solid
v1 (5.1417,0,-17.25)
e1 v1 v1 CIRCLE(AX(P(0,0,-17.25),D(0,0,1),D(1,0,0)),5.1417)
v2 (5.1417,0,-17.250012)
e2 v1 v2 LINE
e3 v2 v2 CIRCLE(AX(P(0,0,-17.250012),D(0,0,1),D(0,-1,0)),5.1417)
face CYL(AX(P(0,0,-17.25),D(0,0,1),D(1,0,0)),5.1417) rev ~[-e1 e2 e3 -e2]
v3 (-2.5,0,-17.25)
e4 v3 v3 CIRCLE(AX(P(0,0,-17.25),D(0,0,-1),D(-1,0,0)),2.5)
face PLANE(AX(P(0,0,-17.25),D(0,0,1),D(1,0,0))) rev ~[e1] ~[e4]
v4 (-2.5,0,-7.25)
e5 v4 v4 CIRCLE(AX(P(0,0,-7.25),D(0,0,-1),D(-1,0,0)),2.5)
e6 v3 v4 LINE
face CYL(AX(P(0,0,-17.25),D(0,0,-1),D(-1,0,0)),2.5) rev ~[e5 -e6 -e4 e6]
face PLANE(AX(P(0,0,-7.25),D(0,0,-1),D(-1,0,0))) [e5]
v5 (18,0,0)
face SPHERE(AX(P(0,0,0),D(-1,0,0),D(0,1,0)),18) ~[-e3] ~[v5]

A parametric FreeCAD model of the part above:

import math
import FreeCAD as App
import Part
import Sketcher

V = App.Vector

doc = App.newDocument("Part")
body = doc.addObject("PartDesign::Body", "Body")

# Sketch on XY plane
sketch1 = doc.addObject("Sketcher::SketchObject", "Sketch")
body.addObject(sketch1)
sketch1.AttachmentSupport = (doc.XY_Plane, [""])
sketch1.MapMode = "FlatFace"
sketch1.addGeometry([
    Part.LineSegment(V(-18, 0, 0), V(18, 0, 0)),
    Part.ArcOfCircle(Part.Circle(V(0, 0, 0), V(0, 0, 1), 18), math.radians(0), math.radians(180)),
], False)
sketch1.addConstraint([
    Sketcher.Constraint("Coincident", 0, 1, 1, 2),
    Sketcher.Constraint("Coincident", 1, 1, 0, 2),
    Sketcher.Constraint("Horizontal", 0),
    Sketcher.Constraint("Coincident", 1, 3, -1, 1),
    Sketcher.Constraint("PointOnObject", 0, 1, -1),
    Sketcher.Constraint("Radius", 1, 18.0),
])
revolution = doc.addObject("PartDesign::Revolution", "Revolution")
body.addObject(revolution)
revolution.Profile = sketch1
revolution.ReferenceAxis = (sketch1, ["H_Axis"])
revolution.Angle = 360

# Sketch on XY plane
sketch2 = doc.addObject("Sketcher::SketchObject", "Sketch001")
body.addObject(sketch2)
sketch2.AttachmentSupport = (doc.XY_Plane, [""])
sketch2.MapMode = "FlatFace"
sketch2.AttachmentOffset = App.Placement(V(0, 0, -17.25), App.Rotation())
sketch2.addGeometry(Part.Circle(V(0, 0, 0), V(0, 0, 1), 5), False)
sketch2.addConstraint([
    Sketcher.Constraint("Coincident", 0, 3, -1, 1),
    Sketcher.Constraint("Diameter", 0, 10.2834),
])
pocket1 = doc.addObject("PartDesign::Pocket", "Pocket")
body.addObject(pocket1)
pocket1.Profile = sketch2
pocket1.Length = 10

# Sketch on XY plane
sketch3 = doc.addObject("Sketcher::SketchObject", "Sketch002")
body.addObject(sketch3)
sketch3.AttachmentSupport = (doc.XY_Plane, [""])
sketch3.MapMode = "FlatFace"
sketch3.AttachmentOffset = App.Placement(V(0, 0, -17.25), App.Rotation())
sketch3.addGeometry(Part.Circle(V(0, 0, 0), V(0, 0, 1), 2.5), False)
sketch3.addConstraint([
    Sketcher.Constraint("Coincident", 0, 3, -1, 1),
    Sketcher.Constraint("Diameter", 0, 5.0),
])
pocket2 = doc.addObject("PartDesign::Pocket", "Pocket001")
body.addObject(pocket2)
pocket2.Profile = sketch3
pocket2.Length = 10
pocket2.Reversed = True

doc.recompute()
